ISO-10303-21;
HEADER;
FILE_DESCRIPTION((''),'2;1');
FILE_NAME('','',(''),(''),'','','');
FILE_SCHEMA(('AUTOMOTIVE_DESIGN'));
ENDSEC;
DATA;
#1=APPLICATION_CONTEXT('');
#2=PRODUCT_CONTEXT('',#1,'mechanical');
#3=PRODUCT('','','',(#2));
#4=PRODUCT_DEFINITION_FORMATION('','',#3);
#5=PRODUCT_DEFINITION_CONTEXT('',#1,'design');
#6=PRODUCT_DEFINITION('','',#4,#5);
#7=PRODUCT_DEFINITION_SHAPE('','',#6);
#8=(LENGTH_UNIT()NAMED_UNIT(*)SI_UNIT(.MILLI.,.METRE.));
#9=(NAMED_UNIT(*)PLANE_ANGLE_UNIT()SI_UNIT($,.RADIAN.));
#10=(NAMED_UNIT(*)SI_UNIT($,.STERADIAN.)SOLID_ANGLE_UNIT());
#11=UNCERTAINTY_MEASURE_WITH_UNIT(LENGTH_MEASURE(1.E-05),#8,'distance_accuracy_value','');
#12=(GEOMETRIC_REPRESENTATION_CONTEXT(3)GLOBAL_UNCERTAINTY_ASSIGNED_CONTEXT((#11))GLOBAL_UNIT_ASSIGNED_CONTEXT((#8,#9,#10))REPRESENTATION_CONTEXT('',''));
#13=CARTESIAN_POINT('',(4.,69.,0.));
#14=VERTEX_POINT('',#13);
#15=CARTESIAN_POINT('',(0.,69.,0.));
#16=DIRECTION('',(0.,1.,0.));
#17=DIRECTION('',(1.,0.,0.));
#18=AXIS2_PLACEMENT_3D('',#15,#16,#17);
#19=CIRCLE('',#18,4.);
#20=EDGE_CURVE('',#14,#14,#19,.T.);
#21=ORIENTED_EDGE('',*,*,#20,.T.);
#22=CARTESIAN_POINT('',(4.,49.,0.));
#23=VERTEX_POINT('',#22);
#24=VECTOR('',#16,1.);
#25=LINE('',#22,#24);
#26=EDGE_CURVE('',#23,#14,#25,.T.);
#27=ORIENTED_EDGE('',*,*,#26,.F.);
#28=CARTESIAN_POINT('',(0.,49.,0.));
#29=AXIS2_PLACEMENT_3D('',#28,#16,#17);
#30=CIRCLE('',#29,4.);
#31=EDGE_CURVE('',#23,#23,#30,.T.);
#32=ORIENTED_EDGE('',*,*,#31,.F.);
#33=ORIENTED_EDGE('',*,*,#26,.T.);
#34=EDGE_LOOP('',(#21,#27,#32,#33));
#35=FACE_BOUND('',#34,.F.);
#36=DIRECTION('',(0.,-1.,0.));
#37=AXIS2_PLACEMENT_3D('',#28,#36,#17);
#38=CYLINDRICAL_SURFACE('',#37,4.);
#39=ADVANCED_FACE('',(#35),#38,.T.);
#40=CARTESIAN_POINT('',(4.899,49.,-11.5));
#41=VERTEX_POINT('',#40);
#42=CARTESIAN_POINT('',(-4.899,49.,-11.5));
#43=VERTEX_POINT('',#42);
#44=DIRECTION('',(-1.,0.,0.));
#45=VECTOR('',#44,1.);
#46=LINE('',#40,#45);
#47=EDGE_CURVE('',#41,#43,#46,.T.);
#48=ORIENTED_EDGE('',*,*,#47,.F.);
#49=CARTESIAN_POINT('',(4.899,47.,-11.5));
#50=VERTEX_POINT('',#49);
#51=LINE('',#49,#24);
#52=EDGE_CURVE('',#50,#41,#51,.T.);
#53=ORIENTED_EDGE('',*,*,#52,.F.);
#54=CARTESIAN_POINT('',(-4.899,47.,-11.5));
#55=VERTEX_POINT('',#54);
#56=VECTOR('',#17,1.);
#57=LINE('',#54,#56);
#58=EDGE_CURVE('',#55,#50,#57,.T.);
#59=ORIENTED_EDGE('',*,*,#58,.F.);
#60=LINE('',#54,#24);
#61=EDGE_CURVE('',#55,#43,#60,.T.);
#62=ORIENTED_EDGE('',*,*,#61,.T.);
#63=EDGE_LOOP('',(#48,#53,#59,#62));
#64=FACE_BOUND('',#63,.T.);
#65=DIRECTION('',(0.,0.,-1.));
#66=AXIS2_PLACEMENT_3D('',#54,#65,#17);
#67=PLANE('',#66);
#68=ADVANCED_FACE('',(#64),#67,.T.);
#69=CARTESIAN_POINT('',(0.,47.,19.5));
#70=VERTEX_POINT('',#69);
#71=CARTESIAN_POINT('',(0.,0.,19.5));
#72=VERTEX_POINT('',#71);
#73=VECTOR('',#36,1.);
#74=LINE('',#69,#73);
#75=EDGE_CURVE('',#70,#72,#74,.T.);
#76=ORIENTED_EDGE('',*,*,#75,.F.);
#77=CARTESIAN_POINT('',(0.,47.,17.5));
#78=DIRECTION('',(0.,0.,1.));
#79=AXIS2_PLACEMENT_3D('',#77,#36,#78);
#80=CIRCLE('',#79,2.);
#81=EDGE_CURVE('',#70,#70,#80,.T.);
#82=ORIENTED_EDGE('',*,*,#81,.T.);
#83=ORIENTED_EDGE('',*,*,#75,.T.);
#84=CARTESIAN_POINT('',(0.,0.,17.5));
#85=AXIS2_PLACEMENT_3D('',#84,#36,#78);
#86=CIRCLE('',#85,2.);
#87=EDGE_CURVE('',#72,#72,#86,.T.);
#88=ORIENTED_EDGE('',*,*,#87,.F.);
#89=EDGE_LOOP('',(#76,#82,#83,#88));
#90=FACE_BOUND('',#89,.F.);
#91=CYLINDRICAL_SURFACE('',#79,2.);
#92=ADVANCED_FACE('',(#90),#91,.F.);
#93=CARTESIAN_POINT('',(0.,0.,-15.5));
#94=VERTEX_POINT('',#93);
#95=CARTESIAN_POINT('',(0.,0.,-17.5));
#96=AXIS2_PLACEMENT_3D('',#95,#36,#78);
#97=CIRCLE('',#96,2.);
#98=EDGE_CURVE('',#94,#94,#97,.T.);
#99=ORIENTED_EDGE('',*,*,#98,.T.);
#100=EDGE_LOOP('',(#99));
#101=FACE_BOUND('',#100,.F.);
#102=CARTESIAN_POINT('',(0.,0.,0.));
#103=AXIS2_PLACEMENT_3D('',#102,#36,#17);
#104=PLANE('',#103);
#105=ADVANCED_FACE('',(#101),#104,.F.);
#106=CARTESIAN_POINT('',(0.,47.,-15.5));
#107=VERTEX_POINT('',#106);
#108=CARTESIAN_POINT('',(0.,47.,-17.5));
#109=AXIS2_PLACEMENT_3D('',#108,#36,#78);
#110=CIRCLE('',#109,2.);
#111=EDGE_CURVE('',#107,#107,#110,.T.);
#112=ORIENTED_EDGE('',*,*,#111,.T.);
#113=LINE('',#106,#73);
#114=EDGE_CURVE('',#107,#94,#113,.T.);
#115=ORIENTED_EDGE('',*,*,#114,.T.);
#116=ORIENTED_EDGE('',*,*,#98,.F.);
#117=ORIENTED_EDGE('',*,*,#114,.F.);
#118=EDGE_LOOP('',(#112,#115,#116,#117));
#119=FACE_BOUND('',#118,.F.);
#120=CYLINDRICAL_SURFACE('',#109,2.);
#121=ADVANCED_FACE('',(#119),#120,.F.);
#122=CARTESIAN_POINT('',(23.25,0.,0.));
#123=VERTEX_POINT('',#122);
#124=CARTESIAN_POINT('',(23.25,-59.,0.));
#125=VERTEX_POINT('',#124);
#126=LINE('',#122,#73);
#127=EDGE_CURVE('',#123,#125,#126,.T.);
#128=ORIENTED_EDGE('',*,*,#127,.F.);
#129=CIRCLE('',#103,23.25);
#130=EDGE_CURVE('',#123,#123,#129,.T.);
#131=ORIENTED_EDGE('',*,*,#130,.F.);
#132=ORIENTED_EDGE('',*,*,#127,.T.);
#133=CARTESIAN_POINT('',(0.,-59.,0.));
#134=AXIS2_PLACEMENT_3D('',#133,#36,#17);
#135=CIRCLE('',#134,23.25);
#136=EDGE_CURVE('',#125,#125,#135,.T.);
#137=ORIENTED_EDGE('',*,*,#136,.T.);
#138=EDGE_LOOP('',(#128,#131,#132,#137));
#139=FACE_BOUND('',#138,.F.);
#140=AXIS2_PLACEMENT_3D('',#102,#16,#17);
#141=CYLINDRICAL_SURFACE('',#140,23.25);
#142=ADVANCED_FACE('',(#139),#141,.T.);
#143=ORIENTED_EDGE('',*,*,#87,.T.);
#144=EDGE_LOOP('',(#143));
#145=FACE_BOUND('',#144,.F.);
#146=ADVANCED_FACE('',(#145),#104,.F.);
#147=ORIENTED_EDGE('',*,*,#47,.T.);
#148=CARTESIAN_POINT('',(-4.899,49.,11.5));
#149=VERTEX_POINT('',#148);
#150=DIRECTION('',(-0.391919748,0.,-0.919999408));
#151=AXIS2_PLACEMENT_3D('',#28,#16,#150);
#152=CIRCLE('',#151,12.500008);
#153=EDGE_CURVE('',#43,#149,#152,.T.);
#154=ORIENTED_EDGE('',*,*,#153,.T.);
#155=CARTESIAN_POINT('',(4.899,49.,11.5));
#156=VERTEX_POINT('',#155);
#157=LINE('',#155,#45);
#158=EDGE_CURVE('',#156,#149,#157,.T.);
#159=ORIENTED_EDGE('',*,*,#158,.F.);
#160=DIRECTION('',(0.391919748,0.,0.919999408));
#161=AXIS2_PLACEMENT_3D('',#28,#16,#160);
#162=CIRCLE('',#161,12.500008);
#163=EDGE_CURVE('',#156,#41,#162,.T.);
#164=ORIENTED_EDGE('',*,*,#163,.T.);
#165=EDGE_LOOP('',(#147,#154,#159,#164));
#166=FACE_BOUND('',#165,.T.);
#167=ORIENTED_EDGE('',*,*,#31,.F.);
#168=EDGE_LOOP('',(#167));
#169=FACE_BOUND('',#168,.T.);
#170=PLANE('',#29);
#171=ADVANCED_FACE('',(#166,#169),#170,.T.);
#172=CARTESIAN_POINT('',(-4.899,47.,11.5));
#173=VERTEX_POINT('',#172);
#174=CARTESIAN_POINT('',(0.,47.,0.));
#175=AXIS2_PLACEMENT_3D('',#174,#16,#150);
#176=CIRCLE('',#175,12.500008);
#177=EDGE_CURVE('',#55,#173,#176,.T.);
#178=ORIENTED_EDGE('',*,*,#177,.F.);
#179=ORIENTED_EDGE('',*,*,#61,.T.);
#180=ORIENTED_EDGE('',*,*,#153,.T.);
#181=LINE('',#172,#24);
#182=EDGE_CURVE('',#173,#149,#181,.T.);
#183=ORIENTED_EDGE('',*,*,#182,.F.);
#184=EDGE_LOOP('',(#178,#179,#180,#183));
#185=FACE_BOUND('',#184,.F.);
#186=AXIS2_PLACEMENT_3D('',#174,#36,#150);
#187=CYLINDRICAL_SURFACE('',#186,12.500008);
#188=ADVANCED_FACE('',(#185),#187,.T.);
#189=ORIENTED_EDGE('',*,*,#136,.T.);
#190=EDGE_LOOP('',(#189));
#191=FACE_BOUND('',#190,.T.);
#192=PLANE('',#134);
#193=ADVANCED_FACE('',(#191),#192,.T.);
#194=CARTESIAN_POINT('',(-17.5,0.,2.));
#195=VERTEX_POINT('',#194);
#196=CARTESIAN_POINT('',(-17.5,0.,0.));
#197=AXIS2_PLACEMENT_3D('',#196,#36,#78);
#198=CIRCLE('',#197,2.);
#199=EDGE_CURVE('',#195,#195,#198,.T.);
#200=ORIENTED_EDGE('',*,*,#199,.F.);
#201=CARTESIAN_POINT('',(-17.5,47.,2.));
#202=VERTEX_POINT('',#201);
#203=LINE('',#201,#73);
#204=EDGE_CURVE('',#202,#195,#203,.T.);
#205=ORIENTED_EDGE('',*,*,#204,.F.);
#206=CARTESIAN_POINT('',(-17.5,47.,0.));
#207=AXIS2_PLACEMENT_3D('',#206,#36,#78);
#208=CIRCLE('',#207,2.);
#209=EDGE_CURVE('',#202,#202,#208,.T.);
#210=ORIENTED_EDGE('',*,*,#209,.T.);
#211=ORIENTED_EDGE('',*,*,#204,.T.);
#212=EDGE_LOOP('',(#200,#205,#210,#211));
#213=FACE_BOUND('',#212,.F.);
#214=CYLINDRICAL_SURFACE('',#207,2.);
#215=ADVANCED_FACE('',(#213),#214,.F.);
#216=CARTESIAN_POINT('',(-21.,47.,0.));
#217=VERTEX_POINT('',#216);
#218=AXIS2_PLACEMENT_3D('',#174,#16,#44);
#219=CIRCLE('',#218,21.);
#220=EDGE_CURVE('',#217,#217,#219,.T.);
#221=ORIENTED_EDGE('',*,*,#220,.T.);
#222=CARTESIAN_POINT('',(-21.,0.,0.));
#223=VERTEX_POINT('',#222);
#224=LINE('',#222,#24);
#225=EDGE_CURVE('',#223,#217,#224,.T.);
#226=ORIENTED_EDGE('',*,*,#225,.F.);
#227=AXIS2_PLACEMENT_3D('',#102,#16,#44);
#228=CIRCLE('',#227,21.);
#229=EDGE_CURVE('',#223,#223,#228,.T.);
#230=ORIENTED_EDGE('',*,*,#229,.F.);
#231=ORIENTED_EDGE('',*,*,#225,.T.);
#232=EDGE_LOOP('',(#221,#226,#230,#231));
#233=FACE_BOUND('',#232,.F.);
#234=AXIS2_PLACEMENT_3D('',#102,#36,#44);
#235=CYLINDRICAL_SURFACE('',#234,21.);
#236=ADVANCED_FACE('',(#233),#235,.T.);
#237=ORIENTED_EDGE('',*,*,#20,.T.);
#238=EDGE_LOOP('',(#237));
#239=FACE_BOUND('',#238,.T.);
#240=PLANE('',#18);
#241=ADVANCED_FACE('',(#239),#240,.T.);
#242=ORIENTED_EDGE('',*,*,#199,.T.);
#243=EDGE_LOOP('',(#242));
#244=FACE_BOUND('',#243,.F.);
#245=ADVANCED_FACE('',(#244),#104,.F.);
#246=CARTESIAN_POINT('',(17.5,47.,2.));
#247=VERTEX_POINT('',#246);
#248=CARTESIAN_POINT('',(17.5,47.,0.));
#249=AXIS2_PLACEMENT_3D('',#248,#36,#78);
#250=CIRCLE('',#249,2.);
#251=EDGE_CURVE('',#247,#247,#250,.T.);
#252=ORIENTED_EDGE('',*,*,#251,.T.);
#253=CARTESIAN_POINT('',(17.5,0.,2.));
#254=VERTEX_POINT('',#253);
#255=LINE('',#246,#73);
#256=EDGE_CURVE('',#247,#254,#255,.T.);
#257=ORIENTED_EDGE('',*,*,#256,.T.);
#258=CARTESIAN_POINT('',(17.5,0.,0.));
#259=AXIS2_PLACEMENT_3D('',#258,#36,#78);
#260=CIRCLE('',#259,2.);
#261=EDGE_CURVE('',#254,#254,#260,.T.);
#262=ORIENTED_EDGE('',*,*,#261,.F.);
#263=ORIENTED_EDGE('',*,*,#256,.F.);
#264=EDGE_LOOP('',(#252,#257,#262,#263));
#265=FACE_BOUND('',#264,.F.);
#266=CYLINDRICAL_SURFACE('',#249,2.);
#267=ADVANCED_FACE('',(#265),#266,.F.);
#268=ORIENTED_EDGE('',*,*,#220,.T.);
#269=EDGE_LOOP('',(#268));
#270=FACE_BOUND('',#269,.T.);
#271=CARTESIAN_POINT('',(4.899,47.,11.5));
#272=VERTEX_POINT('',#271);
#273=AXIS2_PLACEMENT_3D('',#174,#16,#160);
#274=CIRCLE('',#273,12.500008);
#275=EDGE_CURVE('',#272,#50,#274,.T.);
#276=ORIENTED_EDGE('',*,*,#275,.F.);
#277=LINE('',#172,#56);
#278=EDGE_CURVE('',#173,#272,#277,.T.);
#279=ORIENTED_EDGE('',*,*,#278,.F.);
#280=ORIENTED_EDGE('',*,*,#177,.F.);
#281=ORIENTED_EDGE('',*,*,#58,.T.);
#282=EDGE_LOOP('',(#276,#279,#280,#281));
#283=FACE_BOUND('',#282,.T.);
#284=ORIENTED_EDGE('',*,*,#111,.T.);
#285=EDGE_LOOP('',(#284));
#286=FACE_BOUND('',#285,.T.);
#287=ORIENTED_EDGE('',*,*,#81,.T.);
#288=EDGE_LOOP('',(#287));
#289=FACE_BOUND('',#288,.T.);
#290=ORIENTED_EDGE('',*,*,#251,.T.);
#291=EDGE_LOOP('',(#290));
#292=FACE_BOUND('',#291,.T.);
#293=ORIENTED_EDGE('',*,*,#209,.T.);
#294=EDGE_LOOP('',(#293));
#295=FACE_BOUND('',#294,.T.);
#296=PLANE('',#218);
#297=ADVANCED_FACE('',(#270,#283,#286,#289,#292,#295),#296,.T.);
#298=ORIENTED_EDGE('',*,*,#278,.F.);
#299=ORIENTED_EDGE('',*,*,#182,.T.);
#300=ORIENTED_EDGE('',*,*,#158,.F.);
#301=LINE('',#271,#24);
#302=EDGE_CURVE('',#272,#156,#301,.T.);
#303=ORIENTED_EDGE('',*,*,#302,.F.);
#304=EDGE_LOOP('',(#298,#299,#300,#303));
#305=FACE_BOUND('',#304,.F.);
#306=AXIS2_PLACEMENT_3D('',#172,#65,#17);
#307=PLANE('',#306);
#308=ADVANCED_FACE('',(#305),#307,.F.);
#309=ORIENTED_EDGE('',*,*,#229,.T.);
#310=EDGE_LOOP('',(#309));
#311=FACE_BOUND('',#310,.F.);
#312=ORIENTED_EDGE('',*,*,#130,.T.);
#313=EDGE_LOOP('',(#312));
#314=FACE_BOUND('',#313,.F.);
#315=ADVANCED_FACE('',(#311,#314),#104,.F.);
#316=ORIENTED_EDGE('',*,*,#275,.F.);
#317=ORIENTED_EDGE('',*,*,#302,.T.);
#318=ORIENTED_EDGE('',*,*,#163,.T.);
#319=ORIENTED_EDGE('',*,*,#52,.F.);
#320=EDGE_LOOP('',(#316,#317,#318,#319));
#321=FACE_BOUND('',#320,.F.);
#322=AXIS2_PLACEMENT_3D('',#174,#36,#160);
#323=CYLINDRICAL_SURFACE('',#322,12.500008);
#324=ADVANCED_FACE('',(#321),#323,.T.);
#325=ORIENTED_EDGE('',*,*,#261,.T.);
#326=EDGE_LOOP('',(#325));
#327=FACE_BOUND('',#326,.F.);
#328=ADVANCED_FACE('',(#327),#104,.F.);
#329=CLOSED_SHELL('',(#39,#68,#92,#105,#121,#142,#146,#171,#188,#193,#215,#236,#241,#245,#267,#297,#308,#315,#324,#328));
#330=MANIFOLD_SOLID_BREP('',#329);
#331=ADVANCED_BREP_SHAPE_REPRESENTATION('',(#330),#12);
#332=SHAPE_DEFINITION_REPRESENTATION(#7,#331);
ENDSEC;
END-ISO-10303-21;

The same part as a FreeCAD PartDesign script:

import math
import FreeCAD as App
import Part
import Sketcher

doc = App.newDocument("Part")
body = doc.addObject("PartDesign::Body", "Body")

# Sketch on XZ plane
sketch1 = body.newObject("Sketcher::SketchObject", "Sketch")
sketch1.AttachmentSupport = (doc.getObject("XZ_Plane"), [""])
sketch1.MapMode = "FlatFace"
sketch1.addGeometry(Part.Circle(App.Vector(0, 0, 0), App.Vector(0, 0, 1), 21), False)
sketch1.addConstraint([
    Sketcher.Constraint("Coincident", 0, 3, -1, 1),
    Sketcher.Constraint("Diameter", 0, 42.0),
])
pad1 = body.newObject("PartDesign::Pad", "Pad")
pad1.Profile = sketch1
pad1.Length = 47
pad1.Reversed = True

# Sketch on XZ plane
sketch2 = body.newObject("Sketcher::SketchObject", "Sketch001")
sketch2.AttachmentSupport = (doc.getObject("XZ_Plane"), [""])
sketch2.MapMode = "FlatFace"
sketch2.AttachmentOffset = App.Placement(App.Vector(0, 0, -47), App.Rotation())
sketch2.addGeometry([
    Part.LineSegment(App.Vector(-4.899, 11.5, 0), App.Vector(4.899, 11.5, 0)),
    Part.ArcOfCircle(Part.Circle(App.Vector(0, 0, 0), App.Vector(0, 0, 1), 12.500008), math.radians(-66.925995), math.radians(66.925995)),
    Part.LineSegment(App.Vector(4.899, -11.5, 0), App.Vector(-4.899, -11.5, 0)),
    Part.ArcOfCircle(Part.Circle(App.Vector(0, 0, 0), App.Vector(0, 0, 1), 12.500008), math.radians(113.074005), math.radians(246.925995)),
], False)
sketch2.addConstraint([
    Sketcher.Constraint("Coincident", 0, 2, 1, 2),
    Sketcher.Constraint("Coincident", 1, 1, 2, 1),
    Sketcher.Constraint("Coincident", 2, 2, 3, 2),
    Sketcher.Constraint("Coincident", 3, 1, 0, 1),
    Sketcher.Constraint("Horizontal", 0),
    Sketcher.Constraint("Horizontal", 2),
    Sketcher.Constraint("Coincident", 1, 3, -1, 1),
    Sketcher.Constraint("Coincident", 3, 3, -1, 1),
    Sketcher.Constraint("Equal", 1, 3),
    Sketcher.Constraint("Vertical", 0, 2, 1, 1),
    Sketcher.Constraint("Radius", 1, 12.5),
    Sketcher.Constraint("DistanceY", 1, 1, 0, 2, 23.0),
])
pad2 = body.newObject("PartDesign::Pad", "Pad001")
pad2.Profile = sketch2
pad2.Length = 2
pad2.Reversed = True

# Sketch on XZ plane
sketch3 = body.newObject("Sketcher::SketchObject", "Sketch002")
sketch3.AttachmentSupport = (doc.getObject("XZ_Plane"), [""])
sketch3.MapMode = "FlatFace"
sketch3.AttachmentOffset = App.Placement(App.Vector(0, 0, -47), App.Rotation())
sketch3.addGeometry([
    Part.Circle(App.Vector(-17.5, 0, 0), App.Vector(0, 0, 1), 2),
    Part.Circle(App.Vector(0, -17.5, 0), App.Vector(0, 0, 1), 2),
    Part.Circle(App.Vector(0, 17.5, 0), App.Vector(0, 0, 1), 2),
    Part.Circle(App.Vector(17.5, 0, 0), App.Vector(0, 0, 1), 2),
], False)
sketch3.addConstraint([
    Sketcher.Constraint("Equal", 0, 1),
    Sketcher.Constraint("Equal", 1, 2),
    Sketcher.Constraint("Equal", 2, 3),
    Sketcher.Constraint("Symmetric", 1, 3, 2, 3, -1, 1),
    Sketcher.Constraint("Symmetric", 0, 3, 3, 3, -1, 1),
    Sketcher.Constraint("PointOnObject", 0, 3, -1),
    Sketcher.Constraint("PointOnObject", 1, 3, -2),
    Sketcher.Constraint("Diameter", 0, 4.0),
    Sketcher.Constraint("DistanceY", 1, 3, 2, 3, 35.0),
    Sketcher.Constraint("DistanceX", 0, 3, 3, 3, 35.0),
])
doc.recompute()
hole = body.newObject("PartDesign::Hole", "Hole")
hole.Profile = sketch3
hole.ThreadType = "None"
hole.Diameter = 4
hole.DepthType = "ThroughAll"
hole.Reversed = True

# Sketch on XZ plane
sketch4 = body.newObject("Sketcher::SketchObject", "Sketch003")
sketch4.AttachmentSupport = (doc.getObject("XZ_Plane"), [""])
sketch4.MapMode = "FlatFace"
sketch4.AttachmentOffset = App.Placement(App.Vector(0, 0, -49), App.Rotation())
sketch4.addGeometry(Part.Circle(App.Vector(0, 0, 0), App.Vector(0, 0, 1), 4), False)
sketch4.addConstraint([
    Sketcher.Constraint("Coincident", 0, 3, -1, 1),
    Sketcher.Constraint("Diameter", 0, 8.0),
])
pad3 = body.newObject("PartDesign::Pad", "Pad002")
pad3.Profile = sketch4
pad3.Length = 20
pad3.Reversed = True

# Sketch on XZ plane
sketch5 = body.newObject("Sketcher::SketchObject", "Sketch004")
sketch5.AttachmentSupport = (doc.getObject("XZ_Plane"), [""])
sketch5.MapMode = "FlatFace"
sketch5.addGeometry(Part.Circle(App.Vector(0, 0, 0), App.Vector(0, 0, 1), 23.25), False)
sketch5.addConstraint([
    Sketcher.Constraint("Coincident", 0, 3, -1, 1),
    Sketcher.Constraint("Diameter", 0, 46.5),
])
pad4 = body.newObject("PartDesign::Pad", "Pad003")
pad4.Profile = sketch5
pad4.Length = 59

doc.recompute()
